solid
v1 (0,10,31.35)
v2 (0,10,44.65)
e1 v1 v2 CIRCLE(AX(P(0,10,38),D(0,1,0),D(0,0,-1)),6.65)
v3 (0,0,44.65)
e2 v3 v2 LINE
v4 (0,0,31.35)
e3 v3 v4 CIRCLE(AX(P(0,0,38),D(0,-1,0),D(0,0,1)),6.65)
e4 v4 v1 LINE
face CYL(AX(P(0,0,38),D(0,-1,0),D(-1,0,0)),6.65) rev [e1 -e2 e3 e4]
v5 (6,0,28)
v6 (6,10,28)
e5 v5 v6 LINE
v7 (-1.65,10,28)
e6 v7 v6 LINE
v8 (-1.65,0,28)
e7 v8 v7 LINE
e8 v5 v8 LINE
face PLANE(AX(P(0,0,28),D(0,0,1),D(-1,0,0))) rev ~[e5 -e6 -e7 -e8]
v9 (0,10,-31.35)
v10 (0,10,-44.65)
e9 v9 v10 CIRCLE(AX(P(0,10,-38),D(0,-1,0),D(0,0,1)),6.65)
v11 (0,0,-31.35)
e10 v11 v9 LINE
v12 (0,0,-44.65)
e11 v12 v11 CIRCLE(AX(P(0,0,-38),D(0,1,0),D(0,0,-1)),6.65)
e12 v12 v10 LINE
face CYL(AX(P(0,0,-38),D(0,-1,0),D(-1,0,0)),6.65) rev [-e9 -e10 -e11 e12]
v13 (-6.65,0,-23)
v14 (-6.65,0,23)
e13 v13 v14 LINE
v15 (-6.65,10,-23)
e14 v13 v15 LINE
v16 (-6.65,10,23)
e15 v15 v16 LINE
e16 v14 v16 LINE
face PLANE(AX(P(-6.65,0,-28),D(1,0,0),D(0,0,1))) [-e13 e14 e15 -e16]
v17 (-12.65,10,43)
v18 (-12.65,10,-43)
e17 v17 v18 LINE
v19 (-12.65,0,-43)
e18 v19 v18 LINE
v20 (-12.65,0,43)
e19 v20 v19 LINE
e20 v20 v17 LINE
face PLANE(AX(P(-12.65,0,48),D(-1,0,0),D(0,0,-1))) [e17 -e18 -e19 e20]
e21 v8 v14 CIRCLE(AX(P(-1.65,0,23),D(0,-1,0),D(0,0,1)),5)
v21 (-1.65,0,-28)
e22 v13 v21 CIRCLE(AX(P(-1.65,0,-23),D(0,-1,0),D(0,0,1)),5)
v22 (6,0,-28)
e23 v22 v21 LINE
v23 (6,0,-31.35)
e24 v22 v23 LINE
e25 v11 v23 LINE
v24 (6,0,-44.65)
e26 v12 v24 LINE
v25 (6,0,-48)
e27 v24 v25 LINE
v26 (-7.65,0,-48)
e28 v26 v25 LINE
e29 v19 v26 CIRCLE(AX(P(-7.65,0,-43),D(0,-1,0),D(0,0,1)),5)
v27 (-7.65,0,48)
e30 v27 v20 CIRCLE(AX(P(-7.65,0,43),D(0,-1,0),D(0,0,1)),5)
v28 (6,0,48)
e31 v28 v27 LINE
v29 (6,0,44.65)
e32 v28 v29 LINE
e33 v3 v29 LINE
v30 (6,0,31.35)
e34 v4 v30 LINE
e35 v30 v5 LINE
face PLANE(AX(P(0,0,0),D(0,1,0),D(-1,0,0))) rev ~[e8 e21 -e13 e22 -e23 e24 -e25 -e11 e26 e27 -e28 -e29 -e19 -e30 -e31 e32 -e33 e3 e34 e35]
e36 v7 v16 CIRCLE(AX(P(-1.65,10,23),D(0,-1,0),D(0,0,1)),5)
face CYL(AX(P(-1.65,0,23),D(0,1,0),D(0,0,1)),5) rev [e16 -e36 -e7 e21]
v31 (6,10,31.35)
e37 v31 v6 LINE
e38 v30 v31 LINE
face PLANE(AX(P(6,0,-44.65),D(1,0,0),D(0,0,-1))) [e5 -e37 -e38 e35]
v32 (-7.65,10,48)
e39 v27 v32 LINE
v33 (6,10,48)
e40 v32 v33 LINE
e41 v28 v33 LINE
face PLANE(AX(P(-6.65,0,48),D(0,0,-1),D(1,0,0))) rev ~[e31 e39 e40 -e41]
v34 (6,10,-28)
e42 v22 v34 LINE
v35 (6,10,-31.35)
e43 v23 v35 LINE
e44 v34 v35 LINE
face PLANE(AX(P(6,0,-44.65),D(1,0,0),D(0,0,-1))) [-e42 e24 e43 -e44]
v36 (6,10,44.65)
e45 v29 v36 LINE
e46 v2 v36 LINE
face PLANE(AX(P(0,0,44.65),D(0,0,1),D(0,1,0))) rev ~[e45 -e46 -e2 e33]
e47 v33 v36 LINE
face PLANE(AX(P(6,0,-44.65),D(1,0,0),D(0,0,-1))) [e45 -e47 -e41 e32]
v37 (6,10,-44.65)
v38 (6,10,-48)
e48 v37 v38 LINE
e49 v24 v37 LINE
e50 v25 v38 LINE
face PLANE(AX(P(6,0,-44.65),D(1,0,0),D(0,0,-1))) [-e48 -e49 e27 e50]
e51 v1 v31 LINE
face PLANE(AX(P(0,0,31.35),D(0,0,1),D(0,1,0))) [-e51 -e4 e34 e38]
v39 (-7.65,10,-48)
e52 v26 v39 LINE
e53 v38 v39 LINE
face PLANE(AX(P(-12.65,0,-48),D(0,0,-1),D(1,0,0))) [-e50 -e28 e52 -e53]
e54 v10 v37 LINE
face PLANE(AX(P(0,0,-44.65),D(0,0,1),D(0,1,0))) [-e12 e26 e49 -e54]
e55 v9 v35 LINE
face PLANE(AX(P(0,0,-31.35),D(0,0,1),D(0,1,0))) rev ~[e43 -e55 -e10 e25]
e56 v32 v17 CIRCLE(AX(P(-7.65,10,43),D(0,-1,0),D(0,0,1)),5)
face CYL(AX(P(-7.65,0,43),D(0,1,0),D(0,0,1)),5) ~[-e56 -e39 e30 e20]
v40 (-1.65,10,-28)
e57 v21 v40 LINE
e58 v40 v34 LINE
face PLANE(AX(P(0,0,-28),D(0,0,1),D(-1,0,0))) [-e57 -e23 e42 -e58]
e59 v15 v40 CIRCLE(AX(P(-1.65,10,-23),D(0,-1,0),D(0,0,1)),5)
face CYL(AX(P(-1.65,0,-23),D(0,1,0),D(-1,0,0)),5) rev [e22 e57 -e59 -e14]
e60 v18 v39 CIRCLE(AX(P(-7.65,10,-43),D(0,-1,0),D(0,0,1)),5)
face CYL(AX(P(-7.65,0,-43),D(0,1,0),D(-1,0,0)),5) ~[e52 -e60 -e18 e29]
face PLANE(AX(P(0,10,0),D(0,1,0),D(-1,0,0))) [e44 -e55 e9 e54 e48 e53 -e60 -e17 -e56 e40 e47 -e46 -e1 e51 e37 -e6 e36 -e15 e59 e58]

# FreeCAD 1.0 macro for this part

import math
import FreeCAD as App
import Part
import Sketcher


def edges_at(feature, points):
    """Names of the edges that pass closest to the given points."""
    edges = feature.Shape.Edges
    near = lambda p: min(range(len(edges)), key=lambda i: edges[i].distToShape(Part.Vertex(*p))[0])
    return sorted({f"Edge{near(p) + 1}" for p in points})


def add_polygon(sketch, points):
    """Adds a closed chain of lines whose ends are joined by coincident constraints."""
    first, n = sketch.GeometryCount, len(points)
    for a, b in zip(points, points[1:] + points[:1]):
        sketch.addGeometry(Part.LineSegment(App.Vector(*a, 0), App.Vector(*b, 0)), False)
    for i in range(n):
        sketch.addConstraint(Sketcher.Constraint("Coincident", first + i, 2, first + (i + 1) % n, 1))

doc = App.newDocument("Part")
body = doc.addObject("PartDesign::Body", "Body")

# Sketch on XZ plane
sketch1 = body.newObject("Sketcher::SketchObject", "Sketch")
sketch1.AttachmentSupport = (doc.getObject("XZ_Plane"), [""])
sketch1.MapMode = "FlatFace"
sketch1.addGeometry([
    Part.LineSegment(App.Vector(0, 31.35, 0), App.Vector(0, 28, 0)),  # 0
    Part.LineSegment(App.Vector(0, 28, 0), App.Vector(-6.65, 28, 0)),  # 1
    Part.LineSegment(App.Vector(-6.65, 28, 0), App.Vector(-6.65, -28, 0)),  # 2
    Part.LineSegment(App.Vector(-6.65, -28, 0), App.Vector(0, -28, 0)),  # 3
    Part.LineSegment(App.Vector(0, -28, 0), App.Vector(0, -31.35, 0)),  # 4
    Part.ArcOfCircle(Part.Circle(App.Vector(0, -38, 0), App.Vector(0, 0, 1), 6.65), math.radians(90), math.radians(270)),  # 5
    Part.LineSegment(App.Vector(0, -44.65, 0), App.Vector(0, -48, 0)),  # 6
    Part.LineSegment(App.Vector(0, -48, 0), App.Vector(-12.65, -48, 0)),  # 7
    Part.LineSegment(App.Vector(-12.65, -48, 0), App.Vector(-12.65, 48, 0)),  # 8
    Part.LineSegment(App.Vector(-12.65, 48, 0), App.Vector(0, 48, 0)),  # 9
    Part.LineSegment(App.Vector(0, 48, 0), App.Vector(0, 44.65, 0)),  # 10
    Part.ArcOfCircle(Part.Circle(App.Vector(0, 38, 0), App.Vector(0, 0, 1), 6.65), math.radians(90), math.radians(270)),  # 11
], False)
sketch1.addConstraint([
    Sketcher.Constraint("Coincident", 0, 2, 1, 1),
    Sketcher.Constraint("Coincident", 1, 2, 2, 1),
    Sketcher.Constraint("Coincident", 2, 2, 3, 1),
    Sketcher.Constraint("Coincident", 3, 2, 4, 1),
    Sketcher.Constraint("Coincident", 4, 2, 5, 1),
    Sketcher.Constraint("Coincident", 5, 2, 6, 1),
    Sketcher.Constraint("Coincident", 6, 2, 7, 1),
    Sketcher.Constraint("Coincident", 7, 2, 8, 1),
    Sketcher.Constraint("Coincident", 8, 2, 9, 1),
    Sketcher.Constraint("Coincident", 9, 2, 10, 1),
    Sketcher.Constraint("Coincident", 10, 2, 11, 1),
    Sketcher.Constraint("Coincident", 11, 2, 0, 1),
    Sketcher.Constraint("Vertical", 0),
    Sketcher.Constraint("Horizontal", 1),
    Sketcher.Constraint("Vertical", 2),
    Sketcher.Constraint("Horizontal", 3),
    Sketcher.Constraint("Vertical", 4),
    Sketcher.Constraint("Vertical", 6),
    Sketcher.Constraint("Horizontal", 7),
    Sketcher.Constraint("Vertical", 8),
    Sketcher.Constraint("Horizontal", 9),
    Sketcher.Constraint("Vertical", 10),
    Sketcher.Constraint("Equal", 5, 11),
    Sketcher.Constraint("Symmetric", 5, 3, 11, 3, -1, 1),
    Sketcher.Constraint("Symmetric", 0, 2, 3, 2, -1, 1),
    Sketcher.Constraint("Symmetric", 6, 2, 9, 2, -1, 1),
    Sketcher.Constraint("PointOnObject", 5, 3, -2),
    Sketcher.Constraint("PointOnObject", 0, 2, -2),
    Sketcher.Constraint("PointOnObject", 5, 2, -2),
    Sketcher.Constraint("Equal", 4, 6),
    Sketcher.Constraint("Radius", 5, 6.65),
    Sketcher.Constraint("DistanceY", 5, 3, -1, 1, 38.0),
    Sketcher.Constraint("DistanceY", 6, 2, 3, 2, 20.0),
    Sketcher.Constraint("DistanceX", 7, 2, 2, 2, 6.0),
    Sketcher.Constraint("DistanceX", 1, 2, 1, 1, 6.65),
])
pad1 = body.newObject("PartDesign::Pad", "Pad")
pad1.Profile = sketch1
pad1.Length = 10
pad1.Reversed = True
doc.recompute()

fillet = body.newObject("PartDesign::Fillet", "Fillet")
fillet.Base = (pad1, edges_at(pad1, [
    (-12.65, 5, 48),
    (-12.65, 5, -48),
    (-6.65, 5, -28),
    (-6.65, 5, 28),
]))
fillet.Radius = 5

# Sketch on YZ plane
sketch2 = body.newObject("Sketcher::SketchObject", "Sketch001")
sketch2.AttachmentSupport = (doc.getObject("YZ_Plane"), [""])
sketch2.MapMode = "FlatFace"
add_polygon(sketch2, [(10, -44.65), (0, -44.65), (0, -48), (10, -48)])  # lines 0-3
add_polygon(sketch2, [(10, -28), (0, -28), (0, -31.35), (10, -31.35)])  # lines 4-7
add_polygon(sketch2, [(10, 31.35), (0, 31.35), (0, 28), (10, 28)])  # lines 8-11
add_polygon(sketch2, [(10, 48), (0, 48), (0, 44.65), (10, 44.65)])  # lines 12-15
sketch2.addConstraint([
    Sketcher.Constraint("Horizontal", 0),
    Sketcher.Constraint("Vertical", 1),
    Sketcher.Constraint("Horizontal", 2),
    Sketcher.Constraint("Vertical", 3),
    Sketcher.Constraint("Horizontal", 4),
    Sketcher.Constraint("Vertical", 5),
    Sketcher.Constraint("Horizontal", 6),
    Sketcher.Constraint("Vertical", 7),
    Sketcher.Constraint("Horizontal", 8),
    Sketcher.Constraint("Vertical", 9),
    Sketcher.Constraint("Horizontal", 10),
    Sketcher.Constraint("Vertical", 11),
    Sketcher.Constraint("Horizontal", 12),
    Sketcher.Constraint("Vertical", 13),
    Sketcher.Constraint("Horizontal", 14),
    Sketcher.Constraint("Vertical", 15),
    Sketcher.Constraint("Symmetric", 5, 2, 8, 2, -1, 1),
    Sketcher.Constraint("Symmetric", 1, 2, 12, 2, -1, 1),
    Sketcher.Constraint("Symmetric", 4, 2, 9, 2, -1),
    Sketcher.Constraint("Symmetric", 0, 2, 13, 2, -1),
    Sketcher.Constraint("Vertical", 3, 2, 6, 2),
    Sketcher.Constraint("Vertical", 7, 2, 10, 2),
    Sketcher.Constraint("Vertical", 11, 2, 14, 2),
    Sketcher.Constraint("Equal", 3, 5),
    Sketcher.Constraint("DistanceX", 0, 2, 0, 1, 10.0),
    Sketcher.Constraint("DistanceY", 1, 2, -1, 1, 48.0),
    Sketcher.Constraint("DistanceY", 4, 2, -1, 1, 28.0),
    Sketcher.Constraint("DistanceY", 1, 2, 1, 1, 3.35),
])
pad2 = body.newObject("PartDesign::Pad", "Pad001")
pad2.Profile = sketch2
pad2.Length = 6

doc.recompute()
